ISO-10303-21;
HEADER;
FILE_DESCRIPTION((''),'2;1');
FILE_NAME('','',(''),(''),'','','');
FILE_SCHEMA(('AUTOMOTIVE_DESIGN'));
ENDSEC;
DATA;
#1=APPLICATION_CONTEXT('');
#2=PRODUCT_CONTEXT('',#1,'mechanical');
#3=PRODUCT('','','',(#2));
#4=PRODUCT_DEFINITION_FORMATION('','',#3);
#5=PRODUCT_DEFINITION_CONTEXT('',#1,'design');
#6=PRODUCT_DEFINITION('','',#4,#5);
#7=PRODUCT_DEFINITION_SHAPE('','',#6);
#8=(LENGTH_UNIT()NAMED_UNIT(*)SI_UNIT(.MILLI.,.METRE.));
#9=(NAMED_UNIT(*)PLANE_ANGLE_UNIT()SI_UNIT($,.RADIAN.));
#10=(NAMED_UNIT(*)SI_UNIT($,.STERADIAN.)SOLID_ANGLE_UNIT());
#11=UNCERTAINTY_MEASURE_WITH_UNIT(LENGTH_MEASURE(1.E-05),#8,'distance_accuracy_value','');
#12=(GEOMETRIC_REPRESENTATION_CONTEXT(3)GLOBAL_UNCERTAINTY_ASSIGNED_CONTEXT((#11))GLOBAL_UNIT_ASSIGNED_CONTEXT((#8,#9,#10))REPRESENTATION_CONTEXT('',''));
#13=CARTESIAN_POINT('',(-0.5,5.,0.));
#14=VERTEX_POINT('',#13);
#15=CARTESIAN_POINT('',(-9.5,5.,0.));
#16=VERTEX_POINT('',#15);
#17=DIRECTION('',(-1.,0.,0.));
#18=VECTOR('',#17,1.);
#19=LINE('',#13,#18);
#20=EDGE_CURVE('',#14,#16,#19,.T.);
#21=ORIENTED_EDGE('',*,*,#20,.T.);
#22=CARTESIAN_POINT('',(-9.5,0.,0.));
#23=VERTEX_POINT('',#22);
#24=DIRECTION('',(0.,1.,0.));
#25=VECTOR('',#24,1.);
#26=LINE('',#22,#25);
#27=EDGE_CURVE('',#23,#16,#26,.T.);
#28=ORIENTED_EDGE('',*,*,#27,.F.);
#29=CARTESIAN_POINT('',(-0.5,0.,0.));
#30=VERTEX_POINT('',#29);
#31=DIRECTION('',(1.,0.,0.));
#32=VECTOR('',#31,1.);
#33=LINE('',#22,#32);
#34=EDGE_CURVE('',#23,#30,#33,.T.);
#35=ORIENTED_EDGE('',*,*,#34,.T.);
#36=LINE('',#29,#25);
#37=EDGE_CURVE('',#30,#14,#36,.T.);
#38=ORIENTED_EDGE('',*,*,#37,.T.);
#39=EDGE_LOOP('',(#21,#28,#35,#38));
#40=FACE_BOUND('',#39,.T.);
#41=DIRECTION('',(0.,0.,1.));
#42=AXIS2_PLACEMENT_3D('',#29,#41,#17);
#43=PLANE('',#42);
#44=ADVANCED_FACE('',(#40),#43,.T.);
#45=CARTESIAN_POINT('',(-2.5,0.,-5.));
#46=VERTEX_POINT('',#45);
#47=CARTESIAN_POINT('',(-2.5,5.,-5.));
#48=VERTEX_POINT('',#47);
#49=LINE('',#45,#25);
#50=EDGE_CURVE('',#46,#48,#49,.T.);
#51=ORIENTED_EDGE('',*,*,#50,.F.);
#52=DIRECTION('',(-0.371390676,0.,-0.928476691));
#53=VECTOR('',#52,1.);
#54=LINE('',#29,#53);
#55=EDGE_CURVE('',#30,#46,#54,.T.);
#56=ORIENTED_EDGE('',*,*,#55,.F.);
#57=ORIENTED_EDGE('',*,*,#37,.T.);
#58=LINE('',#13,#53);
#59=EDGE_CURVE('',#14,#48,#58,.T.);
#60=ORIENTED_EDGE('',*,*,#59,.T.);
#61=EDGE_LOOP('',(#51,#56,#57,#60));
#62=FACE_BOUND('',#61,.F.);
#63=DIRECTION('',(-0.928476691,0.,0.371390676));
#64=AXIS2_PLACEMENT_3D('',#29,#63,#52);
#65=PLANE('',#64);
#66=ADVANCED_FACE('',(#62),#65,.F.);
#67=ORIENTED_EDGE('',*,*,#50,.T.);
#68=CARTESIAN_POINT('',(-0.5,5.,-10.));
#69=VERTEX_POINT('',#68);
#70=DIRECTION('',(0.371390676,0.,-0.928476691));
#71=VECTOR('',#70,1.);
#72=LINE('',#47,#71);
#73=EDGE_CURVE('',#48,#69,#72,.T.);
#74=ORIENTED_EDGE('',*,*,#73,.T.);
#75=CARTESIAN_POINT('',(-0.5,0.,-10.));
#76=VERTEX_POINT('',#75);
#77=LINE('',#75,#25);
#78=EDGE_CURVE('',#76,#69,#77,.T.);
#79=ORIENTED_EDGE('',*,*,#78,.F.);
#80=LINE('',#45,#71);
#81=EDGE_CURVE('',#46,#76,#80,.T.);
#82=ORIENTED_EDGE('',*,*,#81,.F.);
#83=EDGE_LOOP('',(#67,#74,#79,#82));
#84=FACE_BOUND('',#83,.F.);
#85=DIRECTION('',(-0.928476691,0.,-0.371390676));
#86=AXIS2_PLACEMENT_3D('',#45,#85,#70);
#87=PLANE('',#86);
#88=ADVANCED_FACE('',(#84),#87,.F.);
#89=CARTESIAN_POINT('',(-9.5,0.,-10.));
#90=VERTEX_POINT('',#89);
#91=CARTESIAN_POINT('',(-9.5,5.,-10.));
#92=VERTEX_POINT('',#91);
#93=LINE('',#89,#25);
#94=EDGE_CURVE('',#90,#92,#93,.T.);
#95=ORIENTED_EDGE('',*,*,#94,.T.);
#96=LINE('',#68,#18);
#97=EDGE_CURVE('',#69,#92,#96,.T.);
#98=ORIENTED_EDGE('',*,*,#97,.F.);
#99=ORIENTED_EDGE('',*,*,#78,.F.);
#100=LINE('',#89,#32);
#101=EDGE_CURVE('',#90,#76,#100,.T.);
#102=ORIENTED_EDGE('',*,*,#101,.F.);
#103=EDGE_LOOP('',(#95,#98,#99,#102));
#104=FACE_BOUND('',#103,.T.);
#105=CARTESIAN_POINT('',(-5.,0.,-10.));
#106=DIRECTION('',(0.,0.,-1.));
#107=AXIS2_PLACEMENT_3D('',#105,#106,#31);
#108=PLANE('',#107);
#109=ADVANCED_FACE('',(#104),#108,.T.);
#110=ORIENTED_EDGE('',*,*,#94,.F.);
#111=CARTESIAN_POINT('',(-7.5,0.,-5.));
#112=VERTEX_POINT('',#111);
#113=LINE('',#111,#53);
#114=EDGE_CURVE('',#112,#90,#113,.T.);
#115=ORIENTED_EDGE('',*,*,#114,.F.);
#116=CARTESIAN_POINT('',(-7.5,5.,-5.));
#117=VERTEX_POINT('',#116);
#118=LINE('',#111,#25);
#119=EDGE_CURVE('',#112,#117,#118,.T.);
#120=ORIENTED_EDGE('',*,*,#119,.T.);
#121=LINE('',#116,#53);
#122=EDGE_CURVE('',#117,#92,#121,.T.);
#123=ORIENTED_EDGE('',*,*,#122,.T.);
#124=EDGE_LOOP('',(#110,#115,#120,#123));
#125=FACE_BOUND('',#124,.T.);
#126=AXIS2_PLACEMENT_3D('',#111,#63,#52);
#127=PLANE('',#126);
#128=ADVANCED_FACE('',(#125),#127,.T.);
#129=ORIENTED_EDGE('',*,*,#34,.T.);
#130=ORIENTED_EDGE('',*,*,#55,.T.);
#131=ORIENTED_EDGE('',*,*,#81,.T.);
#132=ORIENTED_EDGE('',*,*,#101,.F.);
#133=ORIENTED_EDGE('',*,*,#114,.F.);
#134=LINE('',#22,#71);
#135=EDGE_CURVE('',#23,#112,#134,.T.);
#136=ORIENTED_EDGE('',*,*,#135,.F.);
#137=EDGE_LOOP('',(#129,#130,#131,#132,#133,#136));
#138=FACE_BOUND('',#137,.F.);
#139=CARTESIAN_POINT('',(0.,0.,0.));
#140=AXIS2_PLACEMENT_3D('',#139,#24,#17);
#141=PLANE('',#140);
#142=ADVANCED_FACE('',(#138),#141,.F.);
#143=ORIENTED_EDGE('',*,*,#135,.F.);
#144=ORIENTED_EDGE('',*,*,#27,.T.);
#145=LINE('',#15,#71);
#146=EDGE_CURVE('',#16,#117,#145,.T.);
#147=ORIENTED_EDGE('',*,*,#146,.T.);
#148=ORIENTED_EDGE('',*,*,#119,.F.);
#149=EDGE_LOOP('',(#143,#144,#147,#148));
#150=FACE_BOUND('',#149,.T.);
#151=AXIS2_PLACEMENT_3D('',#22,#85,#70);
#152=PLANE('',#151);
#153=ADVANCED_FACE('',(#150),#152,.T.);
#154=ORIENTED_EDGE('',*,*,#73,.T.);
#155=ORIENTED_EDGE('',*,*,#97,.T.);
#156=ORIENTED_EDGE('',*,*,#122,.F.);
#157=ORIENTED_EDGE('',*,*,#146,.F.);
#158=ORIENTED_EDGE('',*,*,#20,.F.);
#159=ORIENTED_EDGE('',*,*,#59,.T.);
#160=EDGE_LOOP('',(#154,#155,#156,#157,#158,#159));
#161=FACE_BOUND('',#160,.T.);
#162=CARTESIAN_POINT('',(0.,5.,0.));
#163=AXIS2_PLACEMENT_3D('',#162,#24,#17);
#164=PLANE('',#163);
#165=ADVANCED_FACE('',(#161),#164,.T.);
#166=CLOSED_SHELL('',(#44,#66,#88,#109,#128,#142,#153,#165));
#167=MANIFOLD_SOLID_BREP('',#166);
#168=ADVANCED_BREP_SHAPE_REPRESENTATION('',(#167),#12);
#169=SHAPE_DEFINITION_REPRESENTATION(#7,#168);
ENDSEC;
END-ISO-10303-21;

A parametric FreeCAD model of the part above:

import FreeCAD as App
import Part
import Sketcher
from FreeCAD import Vector


def add_polygon(sketch, points):
    """Adds a closed chain of lines whose ends are joined by coincident constraints."""
    first, n = sketch.GeometryCount, len(points)
    for a, b in zip(points, points[1:] + points[:1]):
        sketch.addGeometry(Part.LineSegment(App.Vector(*a, 0), App.Vector(*b, 0)), False)
    for i in range(n):
        sketch.addConstraint(Sketcher.Constraint("Coincident", first + i, 2, first + (i + 1) % n, 1))

doc = App.newDocument("Part")
body = doc.addObject("PartDesign::Body", "Body")

# Sketch on XZ plane
sketch1 = body.newObject("Sketcher::SketchObject", "Sketch")
sketch1.AttachmentSupport = (doc.getObject("XZ_Plane"), [""])
sketch1.MapMode = "FlatFace"
add_polygon(sketch1, [(0, 0), (-2, -5), (0, -10), (-10, -10), (-8, -5), (-10, 0)])  # lines 0-5
sketch1.addConstraint([
    Sketcher.Constraint("Horizontal", 2),
    Sketcher.Constraint("Horizontal", 5),
    Sketcher.Constraint("PointOnObject", 4, 2, -1),
    Sketcher.Constraint("Parallel", 0, 3),
    Sketcher.Constraint("Parallel", 1, 4),
    Sketcher.Constraint("Horizontal", 0, 2, 3, 2),
    Sketcher.Constraint("Vertical", 2, 2, 4, 2),
    Sketcher.Constraint("Vertical", 1, 2, 5, 2),
    Sketcher.Constraint("DistanceY", 1, 2, -1, 1, 10.0),
    Sketcher.Constraint("DistanceX", 0, 2, -1, 1, 2.5),
    Sketcher.Constraint("DistanceX", 2, 2, 2, 1, 9.0),
    Sketcher.Constraint("DistanceX", 0, 2, 1, 2, 2.0),
])
pad1 = body.newObject("PartDesign::Pad", "Pad")
pad1.Profile = sketch1
pad1.Length = 5
pad1.Reversed = True

doc.recompute()
